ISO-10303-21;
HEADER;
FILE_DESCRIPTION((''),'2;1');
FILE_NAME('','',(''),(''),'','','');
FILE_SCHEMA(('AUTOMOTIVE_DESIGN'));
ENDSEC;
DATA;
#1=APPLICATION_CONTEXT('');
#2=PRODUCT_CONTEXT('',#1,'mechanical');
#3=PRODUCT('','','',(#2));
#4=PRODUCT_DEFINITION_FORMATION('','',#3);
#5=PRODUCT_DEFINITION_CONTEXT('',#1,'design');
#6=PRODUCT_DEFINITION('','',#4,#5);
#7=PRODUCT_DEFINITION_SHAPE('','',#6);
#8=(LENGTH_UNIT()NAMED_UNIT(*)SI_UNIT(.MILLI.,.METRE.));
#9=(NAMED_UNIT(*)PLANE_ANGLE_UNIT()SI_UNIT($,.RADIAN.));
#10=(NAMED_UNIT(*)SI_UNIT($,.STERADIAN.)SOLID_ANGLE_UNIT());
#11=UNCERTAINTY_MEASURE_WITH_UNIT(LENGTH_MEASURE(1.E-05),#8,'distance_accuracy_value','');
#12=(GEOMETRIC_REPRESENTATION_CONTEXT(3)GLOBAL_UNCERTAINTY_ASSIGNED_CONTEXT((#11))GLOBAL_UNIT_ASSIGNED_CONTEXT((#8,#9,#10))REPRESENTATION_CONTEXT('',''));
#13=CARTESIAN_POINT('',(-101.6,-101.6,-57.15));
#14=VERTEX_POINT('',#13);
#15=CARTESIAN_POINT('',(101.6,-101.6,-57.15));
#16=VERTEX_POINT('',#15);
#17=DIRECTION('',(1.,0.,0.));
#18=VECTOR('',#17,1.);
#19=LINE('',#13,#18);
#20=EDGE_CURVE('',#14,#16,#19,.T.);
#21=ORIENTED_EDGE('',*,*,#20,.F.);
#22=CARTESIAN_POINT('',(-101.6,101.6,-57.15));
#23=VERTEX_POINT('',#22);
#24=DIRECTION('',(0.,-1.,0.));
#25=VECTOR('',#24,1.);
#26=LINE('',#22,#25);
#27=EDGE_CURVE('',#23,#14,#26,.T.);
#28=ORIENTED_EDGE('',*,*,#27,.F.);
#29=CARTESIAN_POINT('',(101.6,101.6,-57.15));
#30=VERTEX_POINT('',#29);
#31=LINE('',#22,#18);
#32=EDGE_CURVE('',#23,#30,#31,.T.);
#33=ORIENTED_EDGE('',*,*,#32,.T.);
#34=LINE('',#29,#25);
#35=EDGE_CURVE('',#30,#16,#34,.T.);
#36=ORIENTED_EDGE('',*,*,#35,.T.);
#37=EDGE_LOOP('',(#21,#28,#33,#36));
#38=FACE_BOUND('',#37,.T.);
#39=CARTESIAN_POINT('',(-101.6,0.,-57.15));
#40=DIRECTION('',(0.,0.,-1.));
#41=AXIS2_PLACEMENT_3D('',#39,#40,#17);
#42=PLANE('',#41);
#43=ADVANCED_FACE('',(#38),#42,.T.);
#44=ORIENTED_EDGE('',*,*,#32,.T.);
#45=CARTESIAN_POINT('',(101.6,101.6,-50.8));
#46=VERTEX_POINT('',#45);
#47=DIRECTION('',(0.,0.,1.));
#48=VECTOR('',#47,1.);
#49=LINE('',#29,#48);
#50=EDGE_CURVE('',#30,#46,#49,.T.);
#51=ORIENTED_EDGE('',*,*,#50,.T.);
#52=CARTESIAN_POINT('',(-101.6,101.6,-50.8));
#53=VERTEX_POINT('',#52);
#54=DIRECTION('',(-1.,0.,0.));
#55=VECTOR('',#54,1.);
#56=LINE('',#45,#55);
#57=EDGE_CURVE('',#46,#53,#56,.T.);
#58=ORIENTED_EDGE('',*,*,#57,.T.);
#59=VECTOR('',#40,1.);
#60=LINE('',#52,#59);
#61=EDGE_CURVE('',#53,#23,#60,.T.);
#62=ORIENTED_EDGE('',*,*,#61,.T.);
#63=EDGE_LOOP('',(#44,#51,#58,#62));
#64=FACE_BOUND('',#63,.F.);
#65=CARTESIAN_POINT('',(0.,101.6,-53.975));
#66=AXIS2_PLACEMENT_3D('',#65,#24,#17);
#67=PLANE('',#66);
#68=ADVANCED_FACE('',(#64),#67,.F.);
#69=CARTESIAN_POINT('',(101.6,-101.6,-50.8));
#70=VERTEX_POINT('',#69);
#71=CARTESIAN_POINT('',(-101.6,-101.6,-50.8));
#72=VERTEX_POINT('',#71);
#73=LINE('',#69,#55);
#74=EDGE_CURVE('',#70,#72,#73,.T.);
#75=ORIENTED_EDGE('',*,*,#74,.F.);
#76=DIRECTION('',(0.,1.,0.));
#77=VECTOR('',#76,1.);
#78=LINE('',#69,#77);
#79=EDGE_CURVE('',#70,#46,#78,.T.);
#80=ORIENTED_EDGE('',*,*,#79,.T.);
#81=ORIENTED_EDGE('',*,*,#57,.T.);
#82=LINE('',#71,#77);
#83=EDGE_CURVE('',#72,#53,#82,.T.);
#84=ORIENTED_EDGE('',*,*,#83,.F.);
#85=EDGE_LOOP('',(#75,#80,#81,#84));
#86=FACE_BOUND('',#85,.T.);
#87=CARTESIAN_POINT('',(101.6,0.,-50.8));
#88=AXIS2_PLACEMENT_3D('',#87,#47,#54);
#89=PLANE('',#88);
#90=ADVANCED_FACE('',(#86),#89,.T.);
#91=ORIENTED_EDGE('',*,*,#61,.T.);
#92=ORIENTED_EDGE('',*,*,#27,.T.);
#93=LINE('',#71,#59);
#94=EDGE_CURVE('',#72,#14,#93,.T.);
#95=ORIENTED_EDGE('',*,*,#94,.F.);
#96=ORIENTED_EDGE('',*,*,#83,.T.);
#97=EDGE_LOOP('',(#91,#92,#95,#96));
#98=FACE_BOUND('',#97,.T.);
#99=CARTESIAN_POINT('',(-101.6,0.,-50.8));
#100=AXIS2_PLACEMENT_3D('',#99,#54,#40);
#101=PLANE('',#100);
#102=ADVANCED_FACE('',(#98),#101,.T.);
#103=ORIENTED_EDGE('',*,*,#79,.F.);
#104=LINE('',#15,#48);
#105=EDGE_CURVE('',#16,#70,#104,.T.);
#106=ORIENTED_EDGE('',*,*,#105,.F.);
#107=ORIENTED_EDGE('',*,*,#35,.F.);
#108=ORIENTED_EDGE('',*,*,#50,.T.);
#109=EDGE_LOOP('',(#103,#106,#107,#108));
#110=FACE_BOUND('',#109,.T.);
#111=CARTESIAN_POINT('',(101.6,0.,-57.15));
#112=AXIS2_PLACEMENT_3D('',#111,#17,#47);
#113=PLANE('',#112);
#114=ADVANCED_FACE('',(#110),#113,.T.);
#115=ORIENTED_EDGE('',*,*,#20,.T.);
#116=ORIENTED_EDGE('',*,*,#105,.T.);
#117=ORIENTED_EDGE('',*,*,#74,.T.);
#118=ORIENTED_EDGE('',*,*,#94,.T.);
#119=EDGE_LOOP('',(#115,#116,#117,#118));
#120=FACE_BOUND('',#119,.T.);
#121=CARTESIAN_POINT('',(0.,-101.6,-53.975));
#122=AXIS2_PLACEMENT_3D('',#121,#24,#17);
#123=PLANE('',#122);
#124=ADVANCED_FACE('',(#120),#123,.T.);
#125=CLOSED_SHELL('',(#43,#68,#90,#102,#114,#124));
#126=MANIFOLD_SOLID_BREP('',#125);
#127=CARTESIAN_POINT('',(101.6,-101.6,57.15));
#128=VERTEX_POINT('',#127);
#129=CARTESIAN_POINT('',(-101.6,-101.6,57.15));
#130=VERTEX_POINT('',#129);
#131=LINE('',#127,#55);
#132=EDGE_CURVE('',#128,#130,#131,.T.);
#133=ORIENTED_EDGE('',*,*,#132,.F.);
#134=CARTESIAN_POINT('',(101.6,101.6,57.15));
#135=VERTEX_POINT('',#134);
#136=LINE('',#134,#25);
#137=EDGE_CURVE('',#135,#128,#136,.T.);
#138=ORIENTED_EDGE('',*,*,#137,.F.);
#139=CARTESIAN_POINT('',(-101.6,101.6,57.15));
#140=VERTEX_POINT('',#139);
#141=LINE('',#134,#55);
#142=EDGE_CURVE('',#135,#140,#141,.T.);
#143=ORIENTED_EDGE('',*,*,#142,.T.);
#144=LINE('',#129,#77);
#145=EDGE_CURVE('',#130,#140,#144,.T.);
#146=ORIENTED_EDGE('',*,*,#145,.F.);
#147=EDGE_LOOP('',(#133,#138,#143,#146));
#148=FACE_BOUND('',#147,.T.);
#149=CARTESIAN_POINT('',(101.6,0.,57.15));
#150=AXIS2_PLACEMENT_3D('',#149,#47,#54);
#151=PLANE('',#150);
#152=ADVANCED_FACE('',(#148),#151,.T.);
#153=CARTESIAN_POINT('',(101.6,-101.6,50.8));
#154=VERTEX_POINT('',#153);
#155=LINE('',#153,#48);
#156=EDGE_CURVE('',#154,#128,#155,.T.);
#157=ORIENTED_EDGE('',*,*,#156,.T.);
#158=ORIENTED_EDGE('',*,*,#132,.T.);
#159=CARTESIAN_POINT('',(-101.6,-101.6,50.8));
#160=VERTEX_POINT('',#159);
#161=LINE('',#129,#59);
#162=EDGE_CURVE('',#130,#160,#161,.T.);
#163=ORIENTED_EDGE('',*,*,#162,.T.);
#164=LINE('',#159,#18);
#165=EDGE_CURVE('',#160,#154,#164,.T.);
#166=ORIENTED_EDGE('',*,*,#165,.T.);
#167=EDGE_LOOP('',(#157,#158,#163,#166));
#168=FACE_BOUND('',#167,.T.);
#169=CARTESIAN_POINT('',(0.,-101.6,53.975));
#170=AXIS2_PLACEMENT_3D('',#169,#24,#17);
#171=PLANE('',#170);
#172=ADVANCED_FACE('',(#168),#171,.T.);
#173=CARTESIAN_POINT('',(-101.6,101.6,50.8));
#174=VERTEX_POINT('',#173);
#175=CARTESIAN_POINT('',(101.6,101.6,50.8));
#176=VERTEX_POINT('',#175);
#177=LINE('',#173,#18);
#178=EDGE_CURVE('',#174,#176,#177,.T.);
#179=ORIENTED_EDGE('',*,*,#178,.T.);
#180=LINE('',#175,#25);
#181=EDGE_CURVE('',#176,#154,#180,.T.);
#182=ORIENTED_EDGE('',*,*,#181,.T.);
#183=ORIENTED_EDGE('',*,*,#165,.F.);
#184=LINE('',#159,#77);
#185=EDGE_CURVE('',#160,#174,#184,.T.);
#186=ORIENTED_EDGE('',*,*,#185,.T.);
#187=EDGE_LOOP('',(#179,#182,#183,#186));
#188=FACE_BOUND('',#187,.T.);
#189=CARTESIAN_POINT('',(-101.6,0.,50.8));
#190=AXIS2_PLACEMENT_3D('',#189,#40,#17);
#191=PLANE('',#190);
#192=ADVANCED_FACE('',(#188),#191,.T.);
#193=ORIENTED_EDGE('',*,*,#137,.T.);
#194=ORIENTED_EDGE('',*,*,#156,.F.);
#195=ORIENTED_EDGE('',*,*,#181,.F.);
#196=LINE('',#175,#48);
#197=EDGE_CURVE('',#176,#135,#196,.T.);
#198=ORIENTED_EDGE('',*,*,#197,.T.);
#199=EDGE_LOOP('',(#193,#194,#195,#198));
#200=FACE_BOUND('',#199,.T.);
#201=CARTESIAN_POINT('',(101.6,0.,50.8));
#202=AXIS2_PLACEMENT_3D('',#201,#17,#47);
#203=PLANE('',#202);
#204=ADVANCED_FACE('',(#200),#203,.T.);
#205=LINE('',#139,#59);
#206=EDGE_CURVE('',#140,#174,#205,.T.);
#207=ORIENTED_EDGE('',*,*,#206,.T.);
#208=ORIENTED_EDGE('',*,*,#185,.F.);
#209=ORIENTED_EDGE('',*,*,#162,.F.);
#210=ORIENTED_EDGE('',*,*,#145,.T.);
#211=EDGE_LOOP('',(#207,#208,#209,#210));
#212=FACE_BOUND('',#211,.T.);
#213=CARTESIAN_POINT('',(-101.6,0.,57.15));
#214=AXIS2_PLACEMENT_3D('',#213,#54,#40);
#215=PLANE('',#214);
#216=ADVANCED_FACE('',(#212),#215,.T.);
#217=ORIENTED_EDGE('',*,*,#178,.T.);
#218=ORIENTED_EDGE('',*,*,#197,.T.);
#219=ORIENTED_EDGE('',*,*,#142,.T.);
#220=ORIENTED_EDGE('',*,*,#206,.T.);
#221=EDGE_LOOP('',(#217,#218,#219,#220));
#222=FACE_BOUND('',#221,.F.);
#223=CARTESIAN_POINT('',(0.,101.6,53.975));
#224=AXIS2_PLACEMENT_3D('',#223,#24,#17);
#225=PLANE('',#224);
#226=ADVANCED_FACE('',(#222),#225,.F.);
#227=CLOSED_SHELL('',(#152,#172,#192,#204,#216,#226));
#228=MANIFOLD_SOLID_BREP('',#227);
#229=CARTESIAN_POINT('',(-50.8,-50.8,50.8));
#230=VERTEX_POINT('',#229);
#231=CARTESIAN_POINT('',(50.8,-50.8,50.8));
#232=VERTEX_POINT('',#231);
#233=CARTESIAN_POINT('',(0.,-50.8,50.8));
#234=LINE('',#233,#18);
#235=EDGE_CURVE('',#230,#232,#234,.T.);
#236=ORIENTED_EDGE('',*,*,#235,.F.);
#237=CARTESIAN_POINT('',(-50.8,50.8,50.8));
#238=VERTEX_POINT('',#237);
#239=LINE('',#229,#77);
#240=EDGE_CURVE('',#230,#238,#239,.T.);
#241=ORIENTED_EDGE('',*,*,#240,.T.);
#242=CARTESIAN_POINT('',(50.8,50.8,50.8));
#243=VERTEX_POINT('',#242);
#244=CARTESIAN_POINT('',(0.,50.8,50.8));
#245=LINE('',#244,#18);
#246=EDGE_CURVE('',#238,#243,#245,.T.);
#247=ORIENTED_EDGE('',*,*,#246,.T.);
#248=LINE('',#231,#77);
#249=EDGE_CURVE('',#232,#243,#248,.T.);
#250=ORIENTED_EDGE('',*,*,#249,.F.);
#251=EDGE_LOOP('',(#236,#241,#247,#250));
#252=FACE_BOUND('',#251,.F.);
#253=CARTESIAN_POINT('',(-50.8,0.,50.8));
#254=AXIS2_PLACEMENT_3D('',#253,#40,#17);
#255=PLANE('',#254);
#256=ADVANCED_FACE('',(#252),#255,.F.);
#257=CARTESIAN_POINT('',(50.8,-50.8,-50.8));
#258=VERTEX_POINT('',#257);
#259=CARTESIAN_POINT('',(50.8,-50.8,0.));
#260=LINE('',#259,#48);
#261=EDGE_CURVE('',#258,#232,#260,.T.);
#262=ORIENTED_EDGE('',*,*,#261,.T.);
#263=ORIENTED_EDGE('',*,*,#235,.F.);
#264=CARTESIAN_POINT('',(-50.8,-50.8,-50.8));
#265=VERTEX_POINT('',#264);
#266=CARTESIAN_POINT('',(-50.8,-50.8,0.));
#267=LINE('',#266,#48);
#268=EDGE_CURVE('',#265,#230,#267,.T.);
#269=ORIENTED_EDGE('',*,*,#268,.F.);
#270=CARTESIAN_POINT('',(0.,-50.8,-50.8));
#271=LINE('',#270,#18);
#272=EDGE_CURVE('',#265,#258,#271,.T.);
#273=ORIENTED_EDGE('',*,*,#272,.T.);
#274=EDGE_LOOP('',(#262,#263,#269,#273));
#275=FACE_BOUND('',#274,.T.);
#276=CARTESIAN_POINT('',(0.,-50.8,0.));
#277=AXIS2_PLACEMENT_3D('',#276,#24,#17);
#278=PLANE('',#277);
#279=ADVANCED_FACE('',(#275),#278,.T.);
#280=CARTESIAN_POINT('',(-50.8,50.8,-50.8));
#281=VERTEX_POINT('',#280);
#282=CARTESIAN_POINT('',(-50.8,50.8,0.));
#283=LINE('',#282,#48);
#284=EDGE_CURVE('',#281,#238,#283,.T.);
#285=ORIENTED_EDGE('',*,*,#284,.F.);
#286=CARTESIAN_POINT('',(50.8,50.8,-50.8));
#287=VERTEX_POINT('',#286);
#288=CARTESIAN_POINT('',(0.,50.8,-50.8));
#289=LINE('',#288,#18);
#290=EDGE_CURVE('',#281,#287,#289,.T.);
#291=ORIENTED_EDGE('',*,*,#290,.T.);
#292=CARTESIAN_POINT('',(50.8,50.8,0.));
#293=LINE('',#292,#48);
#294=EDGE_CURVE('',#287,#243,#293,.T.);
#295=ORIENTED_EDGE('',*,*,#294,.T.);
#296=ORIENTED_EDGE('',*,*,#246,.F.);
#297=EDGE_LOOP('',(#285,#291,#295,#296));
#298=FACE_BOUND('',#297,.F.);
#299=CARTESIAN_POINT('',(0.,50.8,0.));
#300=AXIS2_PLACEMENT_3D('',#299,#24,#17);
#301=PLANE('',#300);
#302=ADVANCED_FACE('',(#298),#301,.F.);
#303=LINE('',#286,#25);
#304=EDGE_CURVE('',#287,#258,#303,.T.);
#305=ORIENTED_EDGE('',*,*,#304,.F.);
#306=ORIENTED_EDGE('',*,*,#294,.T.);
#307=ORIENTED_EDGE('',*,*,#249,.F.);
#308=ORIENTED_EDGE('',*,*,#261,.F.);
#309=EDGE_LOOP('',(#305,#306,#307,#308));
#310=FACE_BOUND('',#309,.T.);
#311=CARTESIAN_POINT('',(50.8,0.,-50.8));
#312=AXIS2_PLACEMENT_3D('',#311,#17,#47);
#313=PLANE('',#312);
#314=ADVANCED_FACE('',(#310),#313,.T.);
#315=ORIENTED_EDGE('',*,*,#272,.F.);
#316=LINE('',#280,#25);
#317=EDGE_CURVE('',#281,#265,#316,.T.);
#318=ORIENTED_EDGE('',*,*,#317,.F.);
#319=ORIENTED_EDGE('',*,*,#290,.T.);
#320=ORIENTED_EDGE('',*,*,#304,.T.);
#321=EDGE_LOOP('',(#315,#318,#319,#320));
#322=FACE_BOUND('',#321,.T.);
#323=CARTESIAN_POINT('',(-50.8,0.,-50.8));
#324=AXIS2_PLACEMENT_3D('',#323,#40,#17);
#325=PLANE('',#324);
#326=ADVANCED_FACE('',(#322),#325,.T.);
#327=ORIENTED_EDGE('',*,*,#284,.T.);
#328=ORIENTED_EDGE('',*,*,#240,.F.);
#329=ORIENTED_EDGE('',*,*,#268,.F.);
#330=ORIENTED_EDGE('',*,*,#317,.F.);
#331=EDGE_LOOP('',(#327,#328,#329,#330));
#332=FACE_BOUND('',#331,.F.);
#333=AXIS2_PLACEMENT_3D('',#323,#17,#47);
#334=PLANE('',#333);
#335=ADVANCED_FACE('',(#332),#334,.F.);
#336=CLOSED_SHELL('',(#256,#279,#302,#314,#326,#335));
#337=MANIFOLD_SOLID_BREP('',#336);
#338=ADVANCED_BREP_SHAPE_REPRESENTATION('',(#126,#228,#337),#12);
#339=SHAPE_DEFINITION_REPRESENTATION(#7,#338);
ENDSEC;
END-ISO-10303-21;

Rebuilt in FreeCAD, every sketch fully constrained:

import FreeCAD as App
import Part
import Sketcher
from FreeCAD import Vector
Q = App.Units.Quantity

doc = App.newDocument("Part")
params = doc.addObject("Spreadsheet::Sheet", "Params")
for row, (alias, value) in enumerate([
    ("sketch1_width", "8 in"),
    ("sketch1_height", "0.25 in"),
    ("pad1_length", "4 in"),
    ("pad1_length2", "4 in"),
    ("sketch2_width", "8 in"),
    ("sketch2_height", "0.25 in"),
    ("pad2_length", "4 in"),
    ("pad2_length2", "4 in"),
    ("sketch3_width", "4 in"),
    ("pad3_length", "2 in"),
    ("pad3_length2", "2 in"),
], start=1):
    params.set(f"A{row}", alias)
    params.set(f"B{row}", "=" + value)
    params.setAlias(f"B{row}", alias)

body = doc.addObject("PartDesign::Body", "Body")

sketch1 = body.newObject("Sketcher::SketchObject", "Sketch")
sketch1.AttachmentSupport = (doc.getObject("XZ_Plane"), [""])
sketch1.MapMode = "FlatFace"
sketch1.addGeometry([
    Part.LineSegment(Vector(-102, 51, 0), Vector(102, 51, 0)),
    Part.LineSegment(Vector(102, 51, 0), Vector(102, 57, 0)),
    Part.LineSegment(Vector(102, 57, 0), Vector(-102, 57, 0)),
    Part.LineSegment(Vector(-102, 57, 0), Vector(-102, 51, 0)),
], False)
sketch1.addConstraint([
    Sketcher.Constraint("Coincident", 0, 2, 1, 1),
    Sketcher.Constraint("Coincident", 1, 2, 2, 1),
    Sketcher.Constraint("Coincident", 2, 2, 3, 1),
    Sketcher.Constraint("Coincident", 3, 2, 0, 1),
    Sketcher.Constraint("Horizontal", 0),
    Sketcher.Constraint("Vertical", 1),
    Sketcher.Constraint("Horizontal", 2),
    Sketcher.Constraint("Vertical", 3),
    Sketcher.Constraint("DistanceX", 0, 1, 0, 2, Q("8 in")),
    Sketcher.Constraint("DistanceX", -1, 1, 0, 2, Q("4 in")),
    Sketcher.Constraint("DistanceY", -1, 1, 0, 2, Q("2 in")),
    Sketcher.Constraint("DistanceY", 1, 1, 1, 2, Q("0.25 in")),
])
sketch1.setExpression("Constraints[8]", "Params.sketch1_width")
sketch1.setExpression("Constraints[11]", "Params.sketch1_height")
pad1 = body.newObject("PartDesign::Pad", "Pad")
pad1.Profile = sketch1
pad1.Type = "TwoLengths"
pad1.setExpression("Length", "Params.pad1_length")
pad1.setExpression("Length2", "Params.pad1_length2")
body2 = doc.addObject("PartDesign::Body", "Body001")

sketch2 = body2.newObject("Sketcher::SketchObject", "Sketch001")
sketch2.AttachmentSupport = (doc.getObject("XZ_Plane001"), [""])
sketch2.MapMode = "FlatFace"
sketch2.addGeometry([
    Part.LineSegment(Vector(-102, -51, 0), Vector(-102, -57, 0)),
    Part.LineSegment(Vector(-102, -57, 0), Vector(102, -57, 0)),
    Part.LineSegment(Vector(102, -57, 0), Vector(102, -51, 0)),
    Part.LineSegment(Vector(102, -51, 0), Vector(-102, -51, 0)),
], False)
sketch2.addConstraint([
    Sketcher.Constraint("Coincident", 0, 2, 1, 1),
    Sketcher.Constraint("Coincident", 1, 2, 2, 1),
    Sketcher.Constraint("Coincident", 2, 2, 3, 1),
    Sketcher.Constraint("Coincident", 3, 2, 0, 1),
    Sketcher.Constraint("Vertical", 0),
    Sketcher.Constraint("Horizontal", 1),
    Sketcher.Constraint("Vertical", 2),
    Sketcher.Constraint("Horizontal", 3),
    Sketcher.Constraint("DistanceX", 1, 1, 1, 2, Q("8 in")),
    Sketcher.Constraint("DistanceX", 0, 2, -1, 1, Q("4 in")),
    Sketcher.Constraint("DistanceY", 2, 2, -1, 1, Q("2 in")),
    Sketcher.Constraint("DistanceY", 0, 2, 0, 1, Q("0.25 in")),
])
sketch2.setExpression("Constraints[8]", "Params.sketch2_width")
sketch2.setExpression("Constraints[11]", "Params.sketch2_height")
pad2 = body2.newObject("PartDesign::Pad", "Pad001")
pad2.Profile = sketch2
pad2.Type = "TwoLengths"
pad2.setExpression("Length", "Params.pad2_length")
pad2.setExpression("Length2", "Params.pad2_length2")
body3 = doc.addObject("PartDesign::Body", "Body002")

sketch3 = body3.newObject("Sketcher::SketchObject", "Sketch002")
sketch3.AttachmentSupport = (doc.getObject("XZ_Plane002"), [""])
sketch3.MapMode = "FlatFace"
sketch3.addGeometry([
    Part.LineSegment(Vector(-51, 51, 0), Vector(-51, -51, 0)),
    Part.LineSegment(Vector(-51, -51, 0), Vector(51, -51, 0)),
    Part.LineSegment(Vector(51, -51, 0), Vector(51, 51, 0)),
    Part.LineSegment(Vector(51, 51, 0), Vector(-51, 51, 0)),
], False)
sketch3.addConstraint([
    Sketcher.Constraint("Coincident", 0, 2, 1, 1),
    Sketcher.Constraint("Coincident", 1, 2, 2, 1),
    Sketcher.Constraint("Coincident", 2, 2, 3, 1),
    Sketcher.Constraint("Coincident", 3, 2, 0, 1),
    Sketcher.Constraint("Vertical", 0),
    Sketcher.Constraint("Horizontal", 1),
    Sketcher.Constraint("Vertical", 2),
    Sketcher.Constraint("Horizontal", 3),
    Sketcher.Constraint("Symmetric", 0, 2, 2, 2, -1, 1),
    Sketcher.Constraint("Equal", 3, 0),
    Sketcher.Constraint("DistanceX", 1, 1, 1, 2, Q("4 in")),
])
sketch3.setExpression("Constraints[10]", "Params.sketch3_width")
pad3 = body3.newObject("PartDesign::Pad", "Pad002")
pad3.Profile = sketch3
pad3.Type = "TwoLengths"
pad3.setExpression("Length", "Params.pad3_length")
pad3.setExpression("Length2", "Params.pad3_length2")

doc.recompute()
